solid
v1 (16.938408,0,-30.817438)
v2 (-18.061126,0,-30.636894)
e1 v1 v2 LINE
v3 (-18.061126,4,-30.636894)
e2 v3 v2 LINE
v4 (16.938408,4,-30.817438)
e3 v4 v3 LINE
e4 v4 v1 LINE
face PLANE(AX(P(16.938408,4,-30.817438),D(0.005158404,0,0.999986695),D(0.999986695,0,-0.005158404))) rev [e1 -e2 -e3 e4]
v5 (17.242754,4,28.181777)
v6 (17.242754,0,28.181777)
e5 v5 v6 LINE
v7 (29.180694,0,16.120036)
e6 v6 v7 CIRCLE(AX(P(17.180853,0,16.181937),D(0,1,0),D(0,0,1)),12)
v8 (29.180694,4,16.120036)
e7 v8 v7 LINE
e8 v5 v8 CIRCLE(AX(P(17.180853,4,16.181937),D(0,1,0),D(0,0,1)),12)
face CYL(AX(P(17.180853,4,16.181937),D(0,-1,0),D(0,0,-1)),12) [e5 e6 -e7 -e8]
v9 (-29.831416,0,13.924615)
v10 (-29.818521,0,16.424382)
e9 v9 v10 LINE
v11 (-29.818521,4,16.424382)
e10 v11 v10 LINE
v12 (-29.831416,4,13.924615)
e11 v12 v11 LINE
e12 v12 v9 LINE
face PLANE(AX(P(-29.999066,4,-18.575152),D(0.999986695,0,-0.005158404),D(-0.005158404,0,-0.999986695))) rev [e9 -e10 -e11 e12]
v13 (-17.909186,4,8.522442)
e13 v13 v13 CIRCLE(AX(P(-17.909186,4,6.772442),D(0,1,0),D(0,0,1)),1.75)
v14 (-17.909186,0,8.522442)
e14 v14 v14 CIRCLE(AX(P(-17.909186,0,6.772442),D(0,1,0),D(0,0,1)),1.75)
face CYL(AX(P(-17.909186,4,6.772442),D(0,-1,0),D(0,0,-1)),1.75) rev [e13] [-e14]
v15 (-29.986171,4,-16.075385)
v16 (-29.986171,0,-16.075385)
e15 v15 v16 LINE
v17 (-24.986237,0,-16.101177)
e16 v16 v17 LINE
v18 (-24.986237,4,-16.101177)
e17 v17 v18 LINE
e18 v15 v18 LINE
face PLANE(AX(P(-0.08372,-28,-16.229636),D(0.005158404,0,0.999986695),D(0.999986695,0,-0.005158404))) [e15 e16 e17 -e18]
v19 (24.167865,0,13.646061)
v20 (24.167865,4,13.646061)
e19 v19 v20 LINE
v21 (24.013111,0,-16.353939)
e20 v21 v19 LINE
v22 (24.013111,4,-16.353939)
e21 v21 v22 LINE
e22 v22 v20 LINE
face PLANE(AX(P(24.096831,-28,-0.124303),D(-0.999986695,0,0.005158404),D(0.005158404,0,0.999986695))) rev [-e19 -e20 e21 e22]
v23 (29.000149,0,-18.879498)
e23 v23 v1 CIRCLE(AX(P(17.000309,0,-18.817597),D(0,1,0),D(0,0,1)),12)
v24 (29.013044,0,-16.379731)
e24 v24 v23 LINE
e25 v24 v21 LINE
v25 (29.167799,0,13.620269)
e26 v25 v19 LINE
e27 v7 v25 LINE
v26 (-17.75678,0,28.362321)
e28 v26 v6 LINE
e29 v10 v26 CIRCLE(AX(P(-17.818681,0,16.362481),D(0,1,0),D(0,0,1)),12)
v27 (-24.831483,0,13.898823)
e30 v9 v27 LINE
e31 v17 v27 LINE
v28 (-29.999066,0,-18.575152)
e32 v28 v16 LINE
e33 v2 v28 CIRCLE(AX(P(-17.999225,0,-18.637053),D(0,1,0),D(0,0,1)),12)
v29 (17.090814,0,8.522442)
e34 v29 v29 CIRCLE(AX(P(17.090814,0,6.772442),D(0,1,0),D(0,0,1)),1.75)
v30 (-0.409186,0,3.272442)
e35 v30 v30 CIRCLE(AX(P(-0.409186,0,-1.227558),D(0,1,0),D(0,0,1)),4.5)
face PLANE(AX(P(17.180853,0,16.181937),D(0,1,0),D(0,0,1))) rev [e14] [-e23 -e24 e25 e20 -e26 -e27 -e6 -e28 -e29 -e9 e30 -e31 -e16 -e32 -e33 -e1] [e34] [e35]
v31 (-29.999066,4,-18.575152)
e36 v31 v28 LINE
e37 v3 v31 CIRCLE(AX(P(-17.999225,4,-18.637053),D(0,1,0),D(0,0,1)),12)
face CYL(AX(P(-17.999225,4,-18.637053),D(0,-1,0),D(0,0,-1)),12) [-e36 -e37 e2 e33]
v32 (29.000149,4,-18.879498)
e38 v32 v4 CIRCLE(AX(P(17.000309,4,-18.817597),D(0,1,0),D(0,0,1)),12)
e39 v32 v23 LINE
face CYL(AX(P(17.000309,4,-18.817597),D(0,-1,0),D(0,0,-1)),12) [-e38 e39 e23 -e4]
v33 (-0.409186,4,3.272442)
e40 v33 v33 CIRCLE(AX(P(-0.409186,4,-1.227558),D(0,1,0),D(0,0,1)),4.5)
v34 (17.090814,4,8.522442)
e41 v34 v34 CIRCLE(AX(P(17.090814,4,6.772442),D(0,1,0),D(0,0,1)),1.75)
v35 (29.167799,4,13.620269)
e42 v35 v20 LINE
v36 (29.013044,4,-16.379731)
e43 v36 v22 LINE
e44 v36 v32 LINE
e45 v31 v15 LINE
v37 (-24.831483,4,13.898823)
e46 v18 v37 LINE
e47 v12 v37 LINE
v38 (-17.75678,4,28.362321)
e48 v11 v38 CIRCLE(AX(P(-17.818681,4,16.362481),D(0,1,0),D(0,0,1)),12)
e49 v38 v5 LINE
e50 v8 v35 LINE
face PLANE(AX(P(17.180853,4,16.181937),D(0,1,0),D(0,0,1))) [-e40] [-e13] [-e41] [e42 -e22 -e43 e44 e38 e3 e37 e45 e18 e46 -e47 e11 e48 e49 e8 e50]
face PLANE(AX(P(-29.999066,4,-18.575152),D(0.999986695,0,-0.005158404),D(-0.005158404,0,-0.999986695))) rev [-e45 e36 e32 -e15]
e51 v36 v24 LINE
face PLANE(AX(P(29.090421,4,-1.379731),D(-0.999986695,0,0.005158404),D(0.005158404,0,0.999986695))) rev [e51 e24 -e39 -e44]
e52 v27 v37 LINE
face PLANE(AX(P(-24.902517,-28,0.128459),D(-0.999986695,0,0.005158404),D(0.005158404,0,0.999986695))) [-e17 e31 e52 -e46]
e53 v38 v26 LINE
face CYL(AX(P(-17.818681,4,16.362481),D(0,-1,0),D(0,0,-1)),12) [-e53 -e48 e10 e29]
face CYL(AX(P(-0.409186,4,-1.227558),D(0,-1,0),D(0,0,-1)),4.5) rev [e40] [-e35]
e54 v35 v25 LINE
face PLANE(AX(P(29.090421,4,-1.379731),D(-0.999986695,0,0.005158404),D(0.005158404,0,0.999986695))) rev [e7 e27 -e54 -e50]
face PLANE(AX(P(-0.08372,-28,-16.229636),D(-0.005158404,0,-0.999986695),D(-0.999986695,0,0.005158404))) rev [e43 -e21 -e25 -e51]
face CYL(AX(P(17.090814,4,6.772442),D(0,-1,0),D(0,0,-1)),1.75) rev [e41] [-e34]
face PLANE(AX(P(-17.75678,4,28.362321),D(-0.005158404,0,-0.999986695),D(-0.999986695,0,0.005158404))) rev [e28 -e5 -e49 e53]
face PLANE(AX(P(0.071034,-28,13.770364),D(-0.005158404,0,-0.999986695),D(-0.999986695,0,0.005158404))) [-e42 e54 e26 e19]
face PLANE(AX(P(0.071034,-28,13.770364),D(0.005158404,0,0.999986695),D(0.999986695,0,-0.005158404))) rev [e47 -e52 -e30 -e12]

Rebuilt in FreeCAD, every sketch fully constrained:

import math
import FreeCAD as App
import Part
import Sketcher
Q = App.Units.Quantity


def add_polygon(sketch, points):
    """Adds a closed chain of lines whose ends are joined by coincident constraints."""
    first, n = sketch.GeometryCount, len(points)
    for a, b in zip(points, points[1:] + points[:1]):
        sketch.addGeometry(Part.LineSegment(App.Vector(*a, 0), App.Vector(*b, 0)), False)
    for i in range(n):
        sketch.addConstraint(Sketcher.Constraint("Coincident", first + i, 2, first + (i + 1) % n, 1))

doc = App.newDocument("Part")
params = doc.addObject("Spreadsheet::Sheet", "Params")
for row, (alias, value) in enumerate([
    ("sketch1_diameter", "9 mm"),
    ("sketch1_radius", "12 mm"),
    ("sketch1_diameter2", "3.5 mm"),
    ("sketch1_length", "35 mm"),
    ("pad1_length", "4 mm"),
    ("sketch2_length", "5 mm"),
    ("pocket1_length", "32 mm"),
], start=1):
    params.set(f"A{row}", alias)
    params.set(f"B{row}", "=" + value)
    params.setAlias(f"B{row}", alias)

body = doc.addObject("PartDesign::Body", "Body")

# Sketch on XZ plane
sketch1 = body.newObject("Sketcher::SketchObject", "Sketch")
sketch1.AttachmentSupport = (doc.getObject("XZ_Plane"), [""])
sketch1.MapMode = "FlatFace"
sketch1.addGeometry([
    Part.LineSegment(App.Vector(29.2, 16.1, 0), App.Vector(29.1, -1.4, 0)),  # 0
    Part.LineSegment(App.Vector(29.1, -1.4, 0), App.Vector(29, -18.9, 0)),  # 1
    Part.ArcOfCircle(Part.Circle(App.Vector(17, -18.8, 0), App.Vector(0, 0, 1), 12), math.radians(-90), math.radians(0)),  # 2
    Part.LineSegment(App.Vector(16.9, -30.8, 0), App.Vector(-18.1, -30.6, 0)),  # 3
    Part.ArcOfCircle(Part.Circle(App.Vector(-18, -18.6, 0), App.Vector(0, 0, 1), 12), math.radians(180), math.radians(270)),  # 4
    Part.LineSegment(App.Vector(-30, -18.6, 0), App.Vector(-29.8, 16.4, 0)),  # 5
    Part.ArcOfCircle(Part.Circle(App.Vector(-17.8, 16.4, 0), App.Vector(0, 0, 1), 12), math.radians(90), math.radians(180)),  # 6
    Part.LineSegment(App.Vector(-17.8, 28.4, 0), App.Vector(17.2, 28.2, 0)),  # 7
    Part.ArcOfCircle(Part.Circle(App.Vector(17.2, 16.2, 0), App.Vector(0, 0, 1), 12), math.radians(0), math.radians(90)),  # 8
    Part.Circle(App.Vector(-17.9, 6.8, 0), App.Vector(0, 0, 1), 1.8),  # 9
    Part.Circle(App.Vector(17.1, 6.8, 0), App.Vector(0, 0, 1), 1.8),  # 10
    Part.Circle(App.Vector(-0.4, -1.2, 0), App.Vector(0, 0, 1), 4.5),  # 11
], False)
sketch1.addConstraint([
    Sketcher.Constraint("Coincident", 0, 2, 1, 1),
    Sketcher.Constraint("Tangent", 1, 2, 2, 2),
    Sketcher.Constraint("Tangent", 2, 1, 3, 1),
    Sketcher.Constraint("Tangent", 3, 2, 4, 2),
    Sketcher.Constraint("Tangent", 4, 1, 5, 1),
    Sketcher.Constraint("Tangent", 5, 2, 6, 2),
    Sketcher.Constraint("Tangent", 6, 1, 7, 1),
    Sketcher.Constraint("Tangent", 7, 2, 8, 2),
    Sketcher.Constraint("Tangent", 8, 1, 0, 1),
    Sketcher.Constraint("Equal", 2, 4),
    Sketcher.Constraint("Equal", 4, 6),
    Sketcher.Constraint("Equal", 6, 8),
    Sketcher.Constraint("Equal", 9, 10),
    Sketcher.Constraint("Parallel", 0, 1),
    Sketcher.Constraint("Perpendicular", 1, 3),
    Sketcher.Constraint("Perpendicular", 3, 5),
    Sketcher.Constraint("Perpendicular", 5, 7),
    Sketcher.Constraint("Horizontal", 9, 3, 10, 3),
    Sketcher.Constraint("Equal", 0, 1),
    Sketcher.Constraint("Equal", 3, 5),
    Sketcher.Constraint("Diameter", 11, Q("9 mm")),
    Sketcher.Constraint("Radius", 2, Q("12 mm")),
    Sketcher.Constraint("Diameter", 9, Q("3.5 mm")),
    Sketcher.Constraint("Distance", 3, Q("35 mm")),
    Sketcher.Constraint("DistanceX", 9, 3, 10, 3, Q("35 mm")),
    Sketcher.Constraint("DistanceY", 11, 3, 9, 3, Q("8 mm")),
    Sketcher.Constraint("DistanceX", 9, 3, 11, 3, Q("17.5 mm")),
    Sketcher.Constraint("DistanceY", 1, 2, -1, 1, Q("18.879498 mm")),
    Sketcher.Constraint("DistanceY", 1, 2, 2, 3, Q("0.061901 mm")),
    Sketcher.Constraint("DistanceX", -1, 1, 2, 3, Q("17.000309 mm")),
    Sketcher.Constraint("DistanceY", -1, 1, 9, 3, Q("6.772442 mm")),
    Sketcher.Constraint("DistanceX", 4, 3, 9, 3, Q("0.090039 mm")),
])
sketch1.setExpression("Constraints[20]", "Params.sketch1_diameter")
sketch1.setExpression("Constraints[21]", "Params.sketch1_radius")
sketch1.setExpression("Constraints[22]", "Params.sketch1_diameter2")
sketch1.setExpression("Constraints[23]", "Params.sketch1_length")
pad1 = body.newObject("PartDesign::Pad", "Pad")
pad1.Profile = sketch1
pad1.setExpression("Length", "Params.pad1_length")
pad1.Reversed = True

# Sketch on XZ plane
sketch2 = body.newObject("Sketcher::SketchObject", "Sketch001")
sketch2.AttachmentSupport = (doc.getObject("XZ_Plane"), [""])
sketch2.MapMode = "FlatFace"
sketch2.AttachmentOffset = App.Placement(App.Vector(0, 0, -4), App.Rotation())
add_polygon(sketch2, [(-24.8, 13.9), (-25, -16.1), (-30, -16.1), (-29.8, 13.9)])  # lines 0-3
add_polygon(sketch2, [(29.2, 13.6), (29, -16.4), (24, -16.4), (24.2, 13.6)])  # lines 4-7
sketch2.addConstraint([
    Sketcher.Constraint("Perpendicular", 0, 1),
    Sketcher.Constraint("Perpendicular", 1, 2),
    Sketcher.Constraint("Perpendicular", 2, 3),
    Sketcher.Constraint("Perpendicular", 3, 4),
    Sketcher.Constraint("Perpendicular", 4, 5),
    Sketcher.Constraint("Perpendicular", 5, 6),
    Sketcher.Constraint("Perpendicular", 6, 7),
    Sketcher.Constraint("Equal", 2, 4),
    Sketcher.Constraint("Equal", 3, 5),
    Sketcher.Constraint("Distance", 1, Q("5 mm")),
    Sketcher.Constraint("DistanceY", 1, 2, 2, 2, Q("30 mm")),
    Sketcher.Constraint("DistanceX", -1, 1, 7, 2, Q("29.167799 mm")),
    Sketcher.Constraint("DistanceX", 1, 2, -1, 1, Q("29.986171 mm")),
    Sketcher.Constraint("DistanceY", 4, 2, -1, 1, Q("16.379731 mm")),
    Sketcher.Constraint("DistanceX", -1, 1, 5, 2, Q("24.013111 mm")),
    Sketcher.Constraint("DistanceY", 5, 2, 0, 2, Q("0.252762 mm")),
])
sketch2.setExpression("Constraints[17]", "Params.sketch2_length")
pocket1 = body.newObject("PartDesign::Pocket", "Pocket")
pocket1.Profile = sketch2
pocket1.setExpression("Length", "Params.pocket1_length")
pocket1.Reversed = True

doc.recompute()
